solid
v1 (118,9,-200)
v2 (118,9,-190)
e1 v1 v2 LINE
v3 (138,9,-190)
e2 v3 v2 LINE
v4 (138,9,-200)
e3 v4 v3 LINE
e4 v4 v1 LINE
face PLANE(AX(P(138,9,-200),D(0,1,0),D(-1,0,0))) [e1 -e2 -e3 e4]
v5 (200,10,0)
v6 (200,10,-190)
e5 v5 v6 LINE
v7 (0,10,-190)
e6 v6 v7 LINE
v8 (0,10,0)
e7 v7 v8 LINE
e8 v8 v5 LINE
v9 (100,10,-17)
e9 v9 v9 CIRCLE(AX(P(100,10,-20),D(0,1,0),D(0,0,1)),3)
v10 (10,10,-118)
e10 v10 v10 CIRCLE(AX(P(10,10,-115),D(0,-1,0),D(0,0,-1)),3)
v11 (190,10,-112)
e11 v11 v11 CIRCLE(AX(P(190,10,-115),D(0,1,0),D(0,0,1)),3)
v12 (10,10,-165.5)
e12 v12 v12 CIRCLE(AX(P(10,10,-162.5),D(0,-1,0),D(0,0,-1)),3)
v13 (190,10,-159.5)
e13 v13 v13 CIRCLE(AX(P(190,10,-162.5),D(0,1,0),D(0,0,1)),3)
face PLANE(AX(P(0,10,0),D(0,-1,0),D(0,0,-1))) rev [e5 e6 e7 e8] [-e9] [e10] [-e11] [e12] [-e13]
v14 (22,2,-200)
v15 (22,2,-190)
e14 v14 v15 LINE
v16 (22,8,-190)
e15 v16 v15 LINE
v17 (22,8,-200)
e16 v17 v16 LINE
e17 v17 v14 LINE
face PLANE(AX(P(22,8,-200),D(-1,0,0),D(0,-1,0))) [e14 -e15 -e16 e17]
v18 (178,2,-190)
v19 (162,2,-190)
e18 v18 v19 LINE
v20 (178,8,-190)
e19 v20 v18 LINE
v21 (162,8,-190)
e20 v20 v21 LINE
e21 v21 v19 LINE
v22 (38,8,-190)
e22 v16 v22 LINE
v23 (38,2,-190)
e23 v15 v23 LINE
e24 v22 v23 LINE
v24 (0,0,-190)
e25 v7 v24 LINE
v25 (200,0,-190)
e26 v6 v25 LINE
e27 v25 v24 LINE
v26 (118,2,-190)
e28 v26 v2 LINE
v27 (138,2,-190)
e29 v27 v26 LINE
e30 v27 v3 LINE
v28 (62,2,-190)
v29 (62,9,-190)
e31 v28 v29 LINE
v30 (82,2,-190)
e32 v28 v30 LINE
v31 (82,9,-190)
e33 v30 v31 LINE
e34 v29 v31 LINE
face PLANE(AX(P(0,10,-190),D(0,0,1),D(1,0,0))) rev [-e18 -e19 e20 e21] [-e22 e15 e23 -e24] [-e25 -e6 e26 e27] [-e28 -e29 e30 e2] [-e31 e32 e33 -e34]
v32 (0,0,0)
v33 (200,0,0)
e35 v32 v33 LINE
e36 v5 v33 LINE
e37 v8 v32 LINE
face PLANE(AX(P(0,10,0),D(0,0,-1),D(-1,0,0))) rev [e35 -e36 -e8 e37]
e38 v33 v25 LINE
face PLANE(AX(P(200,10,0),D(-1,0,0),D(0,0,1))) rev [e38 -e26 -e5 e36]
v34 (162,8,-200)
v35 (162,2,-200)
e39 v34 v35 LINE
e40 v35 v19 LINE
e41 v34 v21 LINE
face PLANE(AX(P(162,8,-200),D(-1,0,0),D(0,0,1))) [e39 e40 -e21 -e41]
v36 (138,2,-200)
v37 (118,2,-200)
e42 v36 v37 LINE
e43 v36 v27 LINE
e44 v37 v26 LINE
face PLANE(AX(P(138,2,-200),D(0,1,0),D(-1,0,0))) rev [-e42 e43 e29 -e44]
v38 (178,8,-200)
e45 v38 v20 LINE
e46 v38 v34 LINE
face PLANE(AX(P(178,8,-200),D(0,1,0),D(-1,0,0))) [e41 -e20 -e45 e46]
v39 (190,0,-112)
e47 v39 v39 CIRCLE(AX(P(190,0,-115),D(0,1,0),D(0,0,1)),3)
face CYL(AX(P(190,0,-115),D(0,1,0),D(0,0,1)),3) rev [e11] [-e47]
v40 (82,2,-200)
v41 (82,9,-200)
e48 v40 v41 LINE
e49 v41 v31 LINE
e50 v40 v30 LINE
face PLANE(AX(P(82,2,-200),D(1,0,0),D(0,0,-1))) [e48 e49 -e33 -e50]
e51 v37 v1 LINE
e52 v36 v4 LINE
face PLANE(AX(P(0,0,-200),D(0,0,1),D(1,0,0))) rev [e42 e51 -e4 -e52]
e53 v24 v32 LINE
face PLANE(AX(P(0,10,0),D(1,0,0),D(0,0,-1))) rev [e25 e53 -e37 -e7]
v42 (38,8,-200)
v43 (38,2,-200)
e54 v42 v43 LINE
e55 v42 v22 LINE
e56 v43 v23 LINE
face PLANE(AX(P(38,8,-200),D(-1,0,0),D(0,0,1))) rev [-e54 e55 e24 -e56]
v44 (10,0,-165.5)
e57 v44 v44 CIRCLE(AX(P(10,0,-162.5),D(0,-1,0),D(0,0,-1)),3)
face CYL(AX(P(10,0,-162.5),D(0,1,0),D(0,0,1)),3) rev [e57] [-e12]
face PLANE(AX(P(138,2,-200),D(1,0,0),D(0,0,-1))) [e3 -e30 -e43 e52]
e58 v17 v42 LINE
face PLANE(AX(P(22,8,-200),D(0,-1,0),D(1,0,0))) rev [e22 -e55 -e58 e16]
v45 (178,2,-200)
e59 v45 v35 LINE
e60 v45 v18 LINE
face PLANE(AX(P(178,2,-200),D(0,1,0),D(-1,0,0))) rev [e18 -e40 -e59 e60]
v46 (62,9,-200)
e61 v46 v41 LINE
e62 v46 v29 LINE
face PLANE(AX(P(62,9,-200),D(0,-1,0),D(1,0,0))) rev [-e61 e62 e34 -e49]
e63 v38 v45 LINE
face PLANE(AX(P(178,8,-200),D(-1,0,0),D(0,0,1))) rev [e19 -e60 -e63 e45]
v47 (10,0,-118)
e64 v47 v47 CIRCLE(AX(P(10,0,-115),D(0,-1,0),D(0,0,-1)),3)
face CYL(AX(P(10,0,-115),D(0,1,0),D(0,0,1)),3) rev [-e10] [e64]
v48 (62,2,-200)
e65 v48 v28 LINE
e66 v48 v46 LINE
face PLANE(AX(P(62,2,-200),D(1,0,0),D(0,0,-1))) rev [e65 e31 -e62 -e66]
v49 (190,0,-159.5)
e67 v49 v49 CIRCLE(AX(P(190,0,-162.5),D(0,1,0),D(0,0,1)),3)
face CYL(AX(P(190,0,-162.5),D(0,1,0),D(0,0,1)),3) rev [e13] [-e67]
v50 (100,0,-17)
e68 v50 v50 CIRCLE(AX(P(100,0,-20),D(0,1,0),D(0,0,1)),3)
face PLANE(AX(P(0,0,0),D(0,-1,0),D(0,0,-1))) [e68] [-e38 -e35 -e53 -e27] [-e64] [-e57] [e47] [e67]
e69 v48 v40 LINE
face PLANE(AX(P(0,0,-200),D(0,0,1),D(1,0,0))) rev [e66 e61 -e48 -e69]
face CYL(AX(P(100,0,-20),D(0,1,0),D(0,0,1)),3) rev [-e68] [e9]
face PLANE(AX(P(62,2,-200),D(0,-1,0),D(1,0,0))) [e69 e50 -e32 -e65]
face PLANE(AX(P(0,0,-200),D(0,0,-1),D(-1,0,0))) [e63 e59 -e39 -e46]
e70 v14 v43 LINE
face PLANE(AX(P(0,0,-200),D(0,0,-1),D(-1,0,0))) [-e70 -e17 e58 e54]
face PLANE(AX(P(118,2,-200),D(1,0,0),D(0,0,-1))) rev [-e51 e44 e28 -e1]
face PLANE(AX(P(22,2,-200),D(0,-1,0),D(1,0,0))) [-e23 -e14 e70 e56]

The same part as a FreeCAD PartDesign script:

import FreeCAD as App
import Part
import Sketcher

V = App.Vector


def add_polygon(sketch, points):
    """Adds a closed chain of lines whose ends are joined by coincident constraints."""
    first, n = sketch.GeometryCount, len(points)
    for a, b in zip(points, points[1:] + points[:1]):
        sketch.addGeometry(Part.LineSegment(App.Vector(*a, 0), App.Vector(*b, 0)), False)
    for i in range(n):
        sketch.addConstraint(Sketcher.Constraint("Coincident", first + i, 2, first + (i + 1) % n, 1))

doc = App.newDocument("Part")
body = doc.addObject("PartDesign::Body", "Body")

# Sketch on XZ plane
sketch1 = body.newObject("Sketcher::SketchObject", "Sketch")
sketch1.AttachmentSupport = (doc.getObject("XZ_Plane"), [""])
sketch1.MapMode = "FlatFace"
add_polygon(sketch1, [(0, -190), (0, 0), (200, 0), (200, -190)])  # lines 0-3
sketch1.addConstraint(Sketcher.Constraint("Vertical", 0))
sketch1.addConstraint(Sketcher.Constraint("Horizontal", 1))
sketch1.addConstraint(Sketcher.Constraint("Vertical", 2))
sketch1.addConstraint(Sketcher.Constraint("Horizontal", 3))
sketch1.addConstraint(Sketcher.Constraint("Coincident", 0, 2, -1, 1))
sketch1.addConstraint(Sketcher.Constraint("DistanceX", 1, 1, 1, 2, 200.0))
sketch1.addConstraint(Sketcher.Constraint("DistanceY", 0, 1, 0, 2, 190.0))
pad1 = body.newObject("PartDesign::Pad", "Pad")
pad1.Profile = sketch1
pad1.Length = 10
pad1.Reversed = True

# Sketch on XY plane
sketch2 = body.newObject("Sketcher::SketchObject", "Sketch001")
sketch2.AttachmentSupport = (doc.getObject("XY_Plane"), [""])
sketch2.MapMode = "FlatFace"
sketch2.AttachmentOffset = App.Placement(V(0, 0, -190), App.Rotation())
add_polygon(sketch2, [(38, 8), (38, 2), (22, 2), (22, 8)])  # lines 0-3
add_polygon(sketch2, [(178, 8), (178, 2), (162, 2), (162, 8)])  # lines 4-7
add_polygon(sketch2, [(138, 9), (138, 2), (118, 2), (118, 9)])  # lines 8-11
add_polygon(sketch2, [(82, 9), (82, 2), (62, 2), (62, 9)])  # lines 12-15
sketch2.addConstraint(Sketcher.Constraint("Vertical", 0))
sketch2.addConstraint(Sketcher.Constraint("Horizontal", 1))
sketch2.addConstraint(Sketcher.Constraint("Vertical", 2))
sketch2.addConstraint(Sketcher.Constraint("Horizontal", 3))
sketch2.addConstraint(Sketcher.Constraint("Vertical", 4))
sketch2.addConstraint(Sketcher.Constraint("Horizontal", 5))
sketch2.addConstraint(Sketcher.Constraint("Vertical", 6))
sketch2.addConstraint(Sketcher.Constraint("Horizontal", 7))
sketch2.addConstraint(Sketcher.Constraint("Vertical", 8))
sketch2.addConstraint(Sketcher.Constraint("Horizontal", 9))
sketch2.addConstraint(Sketcher.Constraint("Vertical", 10))
sketch2.addConstraint(Sketcher.Constraint("Horizontal", 11))
sketch2.addConstraint(Sketcher.Constraint("Vertical", 12))
sketch2.addConstraint(Sketcher.Constraint("Horizontal", 13))
sketch2.addConstraint(Sketcher.Constraint("Vertical", 14))
sketch2.addConstraint(Sketcher.Constraint("Horizontal", 15))
sketch2.addConstraint(Sketcher.Constraint("Horizontal", 1, 2, 4, 2))
sketch2.addConstraint(Sketcher.Constraint("Horizontal", 3, 2, 6, 2))
sketch2.addConstraint(Sketcher.Constraint("Horizontal", 5, 2, 8, 2))
sketch2.addConstraint(Sketcher.Constraint("Horizontal", 9, 2, 12, 2))
sketch2.addConstraint(Sketcher.Constraint("Horizontal", 11, 2, 14, 2))
sketch2.addConstraint(Sketcher.Constraint("Equal", 3, 5))
sketch2.addConstraint(Sketcher.Constraint("Equal", 11, 13))
sketch2.addConstraint(Sketcher.Constraint("DistanceX", 1, 2, 1, 1, 16.0))
sketch2.addConstraint(Sketcher.Constraint("DistanceX", 9, 2, 9, 1, 20.0))
sketch2.addConstraint(Sketcher.Constraint("DistanceY", 0, 2, 0, 1, 6.0))
sketch2.addConstraint(Sketcher.Constraint("DistanceY", 8, 2, 8, 1, 7.0))
sketch2.addConstraint(Sketcher.Constraint("DistanceX", -1, 1, 0, 2, 38.0))
sketch2.addConstraint(Sketcher.Constraint("DistanceY", -1, 1, 0, 2, 2.0))
sketch2.addConstraint(Sketcher.Constraint("DistanceX", -1, 1, 4, 2, 178.0))
sketch2.addConstraint(Sketcher.Constraint("DistanceX", -1, 1, 8, 2, 138.0))
sketch2.addConstraint(Sketcher.Constraint("DistanceX", -1, 1, 12, 2, 82.0))
pad2 = body.newObject("PartDesign::Pad", "Pad001")
pad2.Profile = sketch2
pad2.Length = 10
pad2.Reversed = True

# Sketch on XZ plane
sketch3 = body.newObject("Sketcher::SketchObject", "Sketch002")
sketch3.AttachmentSupport = (doc.getObject("XZ_Plane"), [""])
sketch3.MapMode = "FlatFace"
sketch3.AttachmentOffset = App.Placement(V(0, 0, -10), App.Rotation())
sketch3.addGeometry(Part.Circle(V(190, -162.5, 0), V(0, 0, 1), 3), False)
sketch3.addGeometry(Part.Circle(V(190, -115, 0), V(0, 0, 1), 3), False)
sketch3.addGeometry(Part.Circle(V(10, -162.5, 0), V(0, 0, 1), 3), False)
sketch3.addGeometry(Part.Circle(V(10, -115, 0), V(0, 0, 1), 3), False)
sketch3.addConstraint(Sketcher.Constraint("Equal", 0, 1))
sketch3.addConstraint(Sketcher.Constraint("Equal", 1, 2))
sketch3.addConstraint(Sketcher.Constraint("Equal", 2, 3))
sketch3.addConstraint(Sketcher.Constraint("Horizontal", 0, 3, 2, 3))
sketch3.addConstraint(Sketcher.Constraint("Horizontal", 1, 3, 3, 3))
sketch3.addConstraint(Sketcher.Constraint("Vertical", 0, 3, 1, 3))
sketch3.addConstraint(Sketcher.Constraint("Vertical", 2, 3, 3, 3))
sketch3.addConstraint(Sketcher.Constraint("Diameter", 0, 6.0))
sketch3.addConstraint(Sketcher.Constraint("DistanceX", -1, 1, 0, 3, 190.0))
sketch3.addConstraint(Sketcher.Constraint("DistanceY", 1, 3, -1, 1, 115.0))
sketch3.addConstraint(Sketcher.Constraint("DistanceX", -1, 1, 2, 3, 10.0))
sketch3.addConstraint(Sketcher.Constraint("DistanceY", 0, 3, -1, 1, 162.5))
pocket1 = body.newObject("PartDesign::Pocket", "Pocket")
pocket1.Profile = sketch3
pocket1.Length = 10
pocket1.Reversed = True

# Sketch on XZ plane
sketch4 = body.newObject("Sketcher::SketchObject", "Sketch003")
sketch4.AttachmentSupport = (doc.getObject("XZ_Plane"), [""])
sketch4.MapMode = "FlatFace"
sketch4.AttachmentOffset = App.Placement(V(0, 0, -10), App.Rotation())
sketch4.addGeometry(Part.Circle(V(100, -20, 0), V(0, 0, 1), 3), False)
sketch4.addConstraint(Sketcher.Constraint("Diameter", 0, 6.0))
sketch4.addConstraint(Sketcher.Constraint("DistanceX", -1, 1, 0, 3, 100.0))
sketch4.addConstraint(Sketcher.Constraint("DistanceY", 0, 3, -1, 1, 20.0))
pocket2 = body.newObject("PartDesign::Pocket", "Pocket001")
pocket2.Profile = sketch4
pocket2.Length = 10
pocket2.Reversed = True

doc.recompute()
